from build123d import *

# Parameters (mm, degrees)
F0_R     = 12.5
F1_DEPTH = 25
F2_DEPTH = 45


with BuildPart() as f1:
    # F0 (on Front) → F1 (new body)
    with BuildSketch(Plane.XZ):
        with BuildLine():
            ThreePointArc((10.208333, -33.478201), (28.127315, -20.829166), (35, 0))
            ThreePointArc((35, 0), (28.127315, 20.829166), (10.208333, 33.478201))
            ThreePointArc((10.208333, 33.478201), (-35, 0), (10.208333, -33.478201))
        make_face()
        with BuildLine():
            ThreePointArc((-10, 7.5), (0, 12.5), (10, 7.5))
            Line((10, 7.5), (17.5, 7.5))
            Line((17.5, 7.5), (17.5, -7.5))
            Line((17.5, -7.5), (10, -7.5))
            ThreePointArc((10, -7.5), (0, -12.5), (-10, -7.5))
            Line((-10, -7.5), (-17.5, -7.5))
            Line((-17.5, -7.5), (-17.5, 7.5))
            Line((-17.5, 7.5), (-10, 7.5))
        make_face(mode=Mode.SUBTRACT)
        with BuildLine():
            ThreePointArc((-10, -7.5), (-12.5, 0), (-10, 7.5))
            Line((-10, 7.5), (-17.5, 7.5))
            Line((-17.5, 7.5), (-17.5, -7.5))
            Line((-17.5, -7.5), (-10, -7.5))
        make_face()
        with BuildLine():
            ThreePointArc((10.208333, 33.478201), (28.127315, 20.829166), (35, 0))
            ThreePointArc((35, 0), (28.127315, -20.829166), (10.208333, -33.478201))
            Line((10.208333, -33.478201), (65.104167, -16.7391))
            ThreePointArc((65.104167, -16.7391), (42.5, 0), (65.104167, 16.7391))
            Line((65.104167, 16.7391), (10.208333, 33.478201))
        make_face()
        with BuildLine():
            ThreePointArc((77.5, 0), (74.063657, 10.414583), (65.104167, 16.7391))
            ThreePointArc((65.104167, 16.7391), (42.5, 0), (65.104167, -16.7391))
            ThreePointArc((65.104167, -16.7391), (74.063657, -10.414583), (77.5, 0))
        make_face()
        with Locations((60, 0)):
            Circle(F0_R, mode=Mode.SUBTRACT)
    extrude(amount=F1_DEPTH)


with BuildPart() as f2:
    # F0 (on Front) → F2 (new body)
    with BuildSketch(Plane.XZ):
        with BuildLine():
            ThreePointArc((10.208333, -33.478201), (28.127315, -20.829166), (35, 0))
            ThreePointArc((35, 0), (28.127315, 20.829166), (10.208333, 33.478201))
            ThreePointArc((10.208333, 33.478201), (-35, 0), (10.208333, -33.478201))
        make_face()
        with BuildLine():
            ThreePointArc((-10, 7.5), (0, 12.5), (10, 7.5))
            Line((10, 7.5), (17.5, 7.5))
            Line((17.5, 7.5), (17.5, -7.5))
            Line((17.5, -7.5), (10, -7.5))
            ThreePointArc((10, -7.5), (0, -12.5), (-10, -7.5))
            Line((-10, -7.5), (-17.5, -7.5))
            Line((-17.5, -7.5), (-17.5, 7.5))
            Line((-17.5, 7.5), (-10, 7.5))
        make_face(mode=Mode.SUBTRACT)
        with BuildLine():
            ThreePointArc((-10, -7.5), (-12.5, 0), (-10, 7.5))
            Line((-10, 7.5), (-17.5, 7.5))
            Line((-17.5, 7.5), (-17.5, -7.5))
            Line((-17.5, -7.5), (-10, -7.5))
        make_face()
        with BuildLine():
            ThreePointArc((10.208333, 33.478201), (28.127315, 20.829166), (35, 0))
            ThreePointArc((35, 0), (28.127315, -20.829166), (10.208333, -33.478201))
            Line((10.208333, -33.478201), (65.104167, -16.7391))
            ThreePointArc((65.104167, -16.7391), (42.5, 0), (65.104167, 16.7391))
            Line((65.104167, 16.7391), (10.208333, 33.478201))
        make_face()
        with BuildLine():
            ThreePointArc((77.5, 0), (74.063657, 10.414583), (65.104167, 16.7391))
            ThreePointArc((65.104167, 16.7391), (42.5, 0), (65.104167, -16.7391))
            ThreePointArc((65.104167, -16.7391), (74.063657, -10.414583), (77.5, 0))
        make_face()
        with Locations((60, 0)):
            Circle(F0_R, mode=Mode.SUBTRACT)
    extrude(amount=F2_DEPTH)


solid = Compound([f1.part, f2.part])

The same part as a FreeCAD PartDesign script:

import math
import FreeCAD as App
import Part
import Sketcher
from FreeCAD import Vector
Q = App.Units.Quantity

doc = App.newDocument("Part")
body = doc.addObject("PartDesign::Body", "Body")

sketch1 = doc.addObject("Sketcher::SketchObject", "Sketch")
body.addObject(sketch1)
sketch1.AttachmentSupport = (doc.XZ_Plane, [""])
sketch1.MapMode = "FlatFace"
sketch1.addGeometry([
    Part.ArcOfCircle(Part.Circle(Vector(0, 0, 0), Vector(0, 0, 1), 35), math.radians(73.042237), math.radians(286.957763)),
    Part.LineSegment(Vector(10.208333, -33.478201, 0), Vector(65.104167, -16.7391, 0)),
    Part.ArcOfCircle(Part.Circle(Vector(59.999999, 0.000001, 0), Vector(0, 0, 1), 17.500001), math.radians(-73.042234), math.radians(-0.000003)),
    Part.ArcOfCircle(Part.Circle(Vector(59.999999, -0.000001, 0), Vector(0, 0, 1), 17.500001), math.radians(0.000003), math.radians(73.042234)),
    Part.LineSegment(Vector(65.104167, 16.7391, 0), Vector(10.208333, 33.478201, 0)),
    Part.Circle(Vector(60, 0, 0), Vector(0, 0, 1), 12.5),
    Part.ArcOfCircle(Part.Circle(Vector(0, 0, 0), Vector(0, 0, 1), 12.5), math.radians(36.869898), math.radians(323.130102)),
    Part.LineSegment(Vector(10, 7.5, 0), Vector(17.5, 7.5, 0)),
    Part.LineSegment(Vector(17.5, 7.5, 0), Vector(17.5, -7.5, 0)),
    Part.LineSegment(Vector(17.5, -7.5, 0), Vector(10, -7.5, 0)),
], False)
sketch1.addConstraint([
    Sketcher.Constraint("Tangent", 0, 2, 1, 1),
    Sketcher.Constraint("Tangent", 1, 2, 2, 1),
    Sketcher.Constraint("Tangent", 2, 2, 3, 1),
    Sketcher.Constraint("Tangent", 3, 2, 4, 1),
    Sketcher.Constraint("Tangent", 4, 2, 0, 1),
    Sketcher.Constraint("Coincident", 6, 1, 7, 1),
    Sketcher.Constraint("Coincident", 7, 2, 8, 1),
    Sketcher.Constraint("Coincident", 8, 2, 9, 1),
    Sketcher.Constraint("Coincident", 9, 2, 6, 2),
    Sketcher.Constraint("Horizontal", 7),
    Sketcher.Constraint("Vertical", 8),
    Sketcher.Constraint("Horizontal", 9),
    Sketcher.Constraint("Coincident", 0, 3, -1, 1),
    Sketcher.Constraint("Coincident", 6, 3, -1, 1),
    Sketcher.Constraint("Coincident", 5, 3, 2, 3),
    Sketcher.Constraint("Equal", 2, 3),
    Sketcher.Constraint("Equal", 5, 6),
    Sketcher.Constraint("PointOnObject", 2, 3, -1),
    Sketcher.Constraint("PointOnObject", 2, 2, -1),
    Sketcher.Constraint("Vertical", 6, 1, 9, 2),
    Sketcher.Constraint("Diameter", 5, Q("25 mm")),
    Sketcher.Constraint("Radius", 0, Q("35 mm")),
    Sketcher.Constraint("Radius", 2, Q("17.500001 mm")),
    Sketcher.Constraint("DistanceY", 8, 2, 8, 1, Q("15 mm")),
    Sketcher.Constraint("DistanceX", 7, 1, 7, 2, Q("7.5 mm")),
    Sketcher.Constraint("DistanceX", -1, 1, 2, 3, Q("59.999999 mm")),
])
pad1 = doc.addObject("PartDesign::Pad", "Pad")
body.addObject(pad1)
pad1.Profile = sketch1
pad1.Length = 25
body2 = doc.addObject("PartDesign::Body", "Body001")

sketch2 = doc.addObject("Sketcher::SketchObject", "Sketch001")
body2.addObject(sketch2)
sketch2.AttachmentSupport = (doc.getObject("XZ_Plane001"), [""])
sketch2.MapMode = "FlatFace"
sketch2.addGeometry([
    Part.ArcOfCircle(Part.Circle(Vector(0, 0, 0), Vector(0, 0, 1), 35), math.radians(73.042237), math.radians(286.957763)),
    Part.LineSegment(Vector(10.208333, -33.478201, 0), Vector(65.104167, -16.7391, 0)),
    Part.ArcOfCircle(Part.Circle(Vector(59.999999, 0.000001, 0), Vector(0, 0, 1), 17.500001), math.radians(-73.042234), math.radians(-0.000003)),
    Part.ArcOfCircle(Part.Circle(Vector(59.999999, -0.000001, 0), Vector(0, 0, 1), 17.500001), math.radians(0.000003), math.radians(73.042234)),
    Part.LineSegment(Vector(65.104167, 16.7391, 0), Vector(10.208333, 33.478201, 0)),
    Part.Circle(Vector(60, 0, 0), Vector(0, 0, 1), 12.5),
    Part.ArcOfCircle(Part.Circle(Vector(0, 0, 0), Vector(0, 0, 1), 12.5), math.radians(36.869898), math.radians(323.130102)),
    Part.LineSegment(Vector(10, 7.5, 0), Vector(17.5, 7.5, 0)),
    Part.LineSegment(Vector(17.5, 7.5, 0), Vector(17.5, -7.5, 0)),
    Part.LineSegment(Vector(17.5, -7.5, 0), Vector(10, -7.5, 0)),
], False)
sketch2.addConstraint([
    Sketcher.Constraint("Tangent", 0, 2, 1, 1),
    Sketcher.Constraint("Tangent", 1, 2, 2, 1),
    Sketcher.Constraint("Tangent", 2, 2, 3, 1),
    Sketcher.Constraint("Tangent", 3, 2, 4, 1),
    Sketcher.Constraint("Tangent", 4, 2, 0, 1),
    Sketcher.Constraint("Coincident", 6, 1, 7, 1),
    Sketcher.Constraint("Coincident", 7, 2, 8, 1),
    Sketcher.Constraint("Coincident", 8, 2, 9, 1),
    Sketcher.Constraint("Coincident", 9, 2, 6, 2),
    Sketcher.Constraint("Horizontal", 7),
    Sketcher.Constraint("Vertical", 8),
    Sketcher.Constraint("Horizontal", 9),
    Sketcher.Constraint("Coincident", 0, 3, -1, 1),
    Sketcher.Constraint("Coincident", 6, 3, -1, 1),
    Sketcher.Constraint("Coincident", 5, 3, 2, 3),
    Sketcher.Constraint("Equal", 2, 3),
    Sketcher.Constraint("Equal", 5, 6),
    Sketcher.Constraint("PointOnObject", 2, 3, -1),
    Sketcher.Constraint("PointOnObject", 2, 2, -1),
    Sketcher.Constraint("Vertical", 6, 1, 9, 2),
    Sketcher.Constraint("Diameter", 5, Q("25 mm")),
    Sketcher.Constraint("Radius", 0, Q("35 mm")),
    Sketcher.Constraint("Radius", 2, Q("17.500001 mm")),
    Sketcher.Constraint("DistanceY", 8, 2, 8, 1, Q("15 mm")),
    Sketcher.Constraint("DistanceX", 7, 1, 7, 2, Q("7.5 mm")),
    Sketcher.Constraint("DistanceX", -1, 1, 2, 3, Q("59.999999 mm")),
])
pad2 = doc.addObject("PartDesign::Pad", "Pad001")
body2.addObject(pad2)
pad2.Profile = sketch2
pad2.Length = 45

doc.recompute()
